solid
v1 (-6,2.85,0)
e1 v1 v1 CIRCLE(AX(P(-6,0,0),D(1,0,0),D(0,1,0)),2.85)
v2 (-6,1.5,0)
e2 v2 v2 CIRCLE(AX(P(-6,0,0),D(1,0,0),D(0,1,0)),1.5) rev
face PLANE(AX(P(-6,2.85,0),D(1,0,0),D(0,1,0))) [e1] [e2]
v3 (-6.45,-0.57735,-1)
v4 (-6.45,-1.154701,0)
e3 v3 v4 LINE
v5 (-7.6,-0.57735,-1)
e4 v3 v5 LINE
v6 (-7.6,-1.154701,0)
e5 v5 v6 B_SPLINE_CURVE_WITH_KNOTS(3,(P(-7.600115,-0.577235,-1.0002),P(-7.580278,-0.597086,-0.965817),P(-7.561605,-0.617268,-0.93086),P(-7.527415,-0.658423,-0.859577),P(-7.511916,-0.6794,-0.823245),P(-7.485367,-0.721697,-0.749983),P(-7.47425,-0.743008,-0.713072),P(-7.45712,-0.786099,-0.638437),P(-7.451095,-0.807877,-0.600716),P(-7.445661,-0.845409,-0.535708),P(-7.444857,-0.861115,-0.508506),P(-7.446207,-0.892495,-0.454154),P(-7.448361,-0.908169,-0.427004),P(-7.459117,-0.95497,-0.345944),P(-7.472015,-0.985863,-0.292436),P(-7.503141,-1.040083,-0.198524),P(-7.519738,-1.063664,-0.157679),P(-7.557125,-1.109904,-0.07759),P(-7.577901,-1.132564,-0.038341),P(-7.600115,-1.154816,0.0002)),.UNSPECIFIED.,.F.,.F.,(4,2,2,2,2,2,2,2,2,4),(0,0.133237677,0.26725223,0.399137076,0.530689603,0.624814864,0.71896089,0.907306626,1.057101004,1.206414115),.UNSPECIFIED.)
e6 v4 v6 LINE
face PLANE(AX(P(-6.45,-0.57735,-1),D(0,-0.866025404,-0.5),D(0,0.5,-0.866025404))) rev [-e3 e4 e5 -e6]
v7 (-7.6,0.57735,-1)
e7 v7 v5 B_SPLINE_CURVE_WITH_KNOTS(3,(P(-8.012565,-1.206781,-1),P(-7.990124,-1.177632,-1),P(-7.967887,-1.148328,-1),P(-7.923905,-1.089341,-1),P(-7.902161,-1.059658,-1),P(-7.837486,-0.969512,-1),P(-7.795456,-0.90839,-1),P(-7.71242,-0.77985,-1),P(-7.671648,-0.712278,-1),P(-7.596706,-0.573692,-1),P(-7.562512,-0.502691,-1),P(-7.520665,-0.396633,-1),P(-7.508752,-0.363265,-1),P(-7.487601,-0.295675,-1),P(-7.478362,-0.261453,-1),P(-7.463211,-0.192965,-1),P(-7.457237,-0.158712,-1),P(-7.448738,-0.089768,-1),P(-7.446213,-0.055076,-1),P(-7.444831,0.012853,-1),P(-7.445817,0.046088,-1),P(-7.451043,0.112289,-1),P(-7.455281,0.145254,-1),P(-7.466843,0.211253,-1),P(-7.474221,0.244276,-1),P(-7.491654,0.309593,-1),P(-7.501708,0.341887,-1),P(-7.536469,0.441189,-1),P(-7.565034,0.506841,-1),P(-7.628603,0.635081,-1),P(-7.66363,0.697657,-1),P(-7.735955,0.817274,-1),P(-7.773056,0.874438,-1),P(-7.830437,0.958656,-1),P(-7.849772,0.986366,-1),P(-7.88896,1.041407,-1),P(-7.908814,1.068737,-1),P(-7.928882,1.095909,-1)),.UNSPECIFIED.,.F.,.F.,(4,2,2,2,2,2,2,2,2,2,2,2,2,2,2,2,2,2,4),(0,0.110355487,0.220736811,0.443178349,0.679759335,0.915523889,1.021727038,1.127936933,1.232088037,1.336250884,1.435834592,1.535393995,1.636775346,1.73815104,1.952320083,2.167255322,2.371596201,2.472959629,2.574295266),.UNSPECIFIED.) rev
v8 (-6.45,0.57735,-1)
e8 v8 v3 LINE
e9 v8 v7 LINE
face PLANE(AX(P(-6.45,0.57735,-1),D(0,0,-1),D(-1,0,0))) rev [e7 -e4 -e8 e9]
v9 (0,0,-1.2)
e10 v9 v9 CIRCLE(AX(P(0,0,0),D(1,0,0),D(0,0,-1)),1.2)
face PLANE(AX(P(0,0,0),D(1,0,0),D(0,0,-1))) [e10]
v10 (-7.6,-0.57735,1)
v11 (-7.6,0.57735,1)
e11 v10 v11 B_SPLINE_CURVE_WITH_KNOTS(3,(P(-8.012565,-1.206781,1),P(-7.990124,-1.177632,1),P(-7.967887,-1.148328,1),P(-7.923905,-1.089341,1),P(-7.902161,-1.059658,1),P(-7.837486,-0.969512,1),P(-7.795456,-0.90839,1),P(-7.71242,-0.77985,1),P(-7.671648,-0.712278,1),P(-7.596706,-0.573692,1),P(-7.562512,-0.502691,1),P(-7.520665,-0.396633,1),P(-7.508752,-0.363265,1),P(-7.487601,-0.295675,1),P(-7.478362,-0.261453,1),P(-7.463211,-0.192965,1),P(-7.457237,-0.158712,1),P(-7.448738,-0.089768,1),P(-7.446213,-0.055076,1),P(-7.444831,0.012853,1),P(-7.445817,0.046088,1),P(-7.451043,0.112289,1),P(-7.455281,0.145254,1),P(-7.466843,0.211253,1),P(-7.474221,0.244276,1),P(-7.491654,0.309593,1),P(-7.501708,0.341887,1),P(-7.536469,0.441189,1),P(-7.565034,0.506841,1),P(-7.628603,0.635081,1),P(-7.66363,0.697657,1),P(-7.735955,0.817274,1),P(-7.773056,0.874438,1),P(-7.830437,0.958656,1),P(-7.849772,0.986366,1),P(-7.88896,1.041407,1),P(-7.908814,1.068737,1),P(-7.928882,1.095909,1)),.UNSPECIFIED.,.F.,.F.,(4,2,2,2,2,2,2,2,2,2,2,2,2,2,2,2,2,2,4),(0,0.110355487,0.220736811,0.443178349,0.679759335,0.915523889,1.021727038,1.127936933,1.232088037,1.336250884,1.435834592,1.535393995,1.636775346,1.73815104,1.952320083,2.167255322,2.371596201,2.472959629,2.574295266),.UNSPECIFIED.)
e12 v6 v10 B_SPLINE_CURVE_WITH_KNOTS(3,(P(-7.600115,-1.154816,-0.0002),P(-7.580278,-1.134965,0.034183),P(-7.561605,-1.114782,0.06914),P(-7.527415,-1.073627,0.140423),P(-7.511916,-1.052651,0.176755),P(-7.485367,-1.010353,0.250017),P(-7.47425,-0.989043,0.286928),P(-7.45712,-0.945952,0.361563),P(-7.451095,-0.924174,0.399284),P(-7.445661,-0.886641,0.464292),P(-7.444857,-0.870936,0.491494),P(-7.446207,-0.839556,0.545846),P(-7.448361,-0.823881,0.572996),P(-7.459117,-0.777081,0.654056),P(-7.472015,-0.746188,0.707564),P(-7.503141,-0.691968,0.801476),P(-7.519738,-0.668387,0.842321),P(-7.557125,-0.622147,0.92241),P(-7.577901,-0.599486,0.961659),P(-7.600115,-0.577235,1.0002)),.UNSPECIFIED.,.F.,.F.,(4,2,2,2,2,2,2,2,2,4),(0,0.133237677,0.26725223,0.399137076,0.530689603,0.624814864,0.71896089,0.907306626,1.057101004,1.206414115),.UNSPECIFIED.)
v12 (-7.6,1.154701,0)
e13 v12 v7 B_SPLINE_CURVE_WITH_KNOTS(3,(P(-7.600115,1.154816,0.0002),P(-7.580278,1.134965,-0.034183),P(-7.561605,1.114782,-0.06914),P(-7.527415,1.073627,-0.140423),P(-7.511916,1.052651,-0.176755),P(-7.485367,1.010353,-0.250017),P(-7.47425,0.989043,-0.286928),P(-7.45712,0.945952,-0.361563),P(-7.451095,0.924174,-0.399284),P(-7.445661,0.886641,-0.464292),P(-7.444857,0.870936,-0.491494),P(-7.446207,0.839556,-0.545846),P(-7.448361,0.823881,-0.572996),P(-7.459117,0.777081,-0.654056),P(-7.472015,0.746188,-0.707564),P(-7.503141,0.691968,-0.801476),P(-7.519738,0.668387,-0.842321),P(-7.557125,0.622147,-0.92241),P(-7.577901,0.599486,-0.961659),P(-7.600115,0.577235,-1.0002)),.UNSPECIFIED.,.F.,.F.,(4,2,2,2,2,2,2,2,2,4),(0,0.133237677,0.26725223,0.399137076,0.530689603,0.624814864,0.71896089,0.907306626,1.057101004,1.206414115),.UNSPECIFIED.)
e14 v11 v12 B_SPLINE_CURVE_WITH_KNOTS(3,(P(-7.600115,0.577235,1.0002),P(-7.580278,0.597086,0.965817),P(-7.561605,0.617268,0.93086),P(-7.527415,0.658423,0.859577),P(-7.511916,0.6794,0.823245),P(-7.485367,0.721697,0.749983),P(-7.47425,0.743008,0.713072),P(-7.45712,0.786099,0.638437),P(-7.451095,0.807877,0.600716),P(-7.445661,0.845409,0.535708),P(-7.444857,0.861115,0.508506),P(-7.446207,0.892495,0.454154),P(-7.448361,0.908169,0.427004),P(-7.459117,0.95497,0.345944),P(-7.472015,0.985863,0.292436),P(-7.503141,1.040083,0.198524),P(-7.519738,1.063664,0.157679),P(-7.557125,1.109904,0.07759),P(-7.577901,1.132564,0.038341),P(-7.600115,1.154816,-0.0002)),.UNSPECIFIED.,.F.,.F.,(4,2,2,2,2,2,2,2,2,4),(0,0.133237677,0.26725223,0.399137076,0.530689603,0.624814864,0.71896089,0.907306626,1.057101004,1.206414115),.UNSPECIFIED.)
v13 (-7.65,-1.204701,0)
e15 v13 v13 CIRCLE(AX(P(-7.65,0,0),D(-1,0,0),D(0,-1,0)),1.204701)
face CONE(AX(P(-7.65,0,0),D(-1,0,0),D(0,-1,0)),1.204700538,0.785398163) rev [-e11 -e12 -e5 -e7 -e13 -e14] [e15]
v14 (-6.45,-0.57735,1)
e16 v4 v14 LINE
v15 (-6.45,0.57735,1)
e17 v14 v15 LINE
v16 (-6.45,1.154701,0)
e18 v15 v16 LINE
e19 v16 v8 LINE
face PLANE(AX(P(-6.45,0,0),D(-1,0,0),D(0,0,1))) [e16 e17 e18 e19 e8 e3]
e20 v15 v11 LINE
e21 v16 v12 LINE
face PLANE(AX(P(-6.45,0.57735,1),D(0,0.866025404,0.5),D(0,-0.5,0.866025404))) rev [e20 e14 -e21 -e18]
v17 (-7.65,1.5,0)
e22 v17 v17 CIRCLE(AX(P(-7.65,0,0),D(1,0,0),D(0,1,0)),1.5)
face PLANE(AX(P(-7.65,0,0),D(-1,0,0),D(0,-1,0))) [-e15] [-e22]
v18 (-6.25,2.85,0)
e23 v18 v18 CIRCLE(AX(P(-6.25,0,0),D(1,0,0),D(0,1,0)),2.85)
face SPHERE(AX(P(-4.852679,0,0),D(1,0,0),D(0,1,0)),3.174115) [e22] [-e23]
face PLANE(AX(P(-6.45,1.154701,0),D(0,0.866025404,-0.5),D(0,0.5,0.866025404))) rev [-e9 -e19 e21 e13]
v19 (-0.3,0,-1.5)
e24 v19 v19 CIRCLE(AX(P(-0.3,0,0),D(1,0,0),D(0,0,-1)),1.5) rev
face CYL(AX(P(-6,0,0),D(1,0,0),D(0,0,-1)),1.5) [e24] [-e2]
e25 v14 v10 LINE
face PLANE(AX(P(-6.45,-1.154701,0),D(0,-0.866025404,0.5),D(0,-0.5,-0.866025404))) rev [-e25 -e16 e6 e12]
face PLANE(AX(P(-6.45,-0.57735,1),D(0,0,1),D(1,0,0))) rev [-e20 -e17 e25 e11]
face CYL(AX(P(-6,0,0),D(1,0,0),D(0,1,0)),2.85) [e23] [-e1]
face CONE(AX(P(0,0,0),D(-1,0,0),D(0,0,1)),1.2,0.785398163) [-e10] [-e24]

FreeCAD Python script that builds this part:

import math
import FreeCAD as App
import Part
import Sketcher
Q = App.Units.Quantity


def edges_at(feature, points):
    """Names of the edges that pass closest to the given points."""
    edges = feature.Shape.Edges
    near = lambda p: min(range(len(edges)), key=lambda i: edges[i].distToShape(Part.Vertex(*p))[0])
    return sorted({f"Edge{near(p) + 1}" for p in points})


def add_polygon(sketch, points):
    """Adds a closed chain of lines whose ends are joined by coincident constraints."""
    first, n = sketch.GeometryCount, len(points)
    for a, b in zip(points, points[1:] + points[:1]):
        sketch.addGeometry(Part.LineSegment(App.Vector(*a, 0), App.Vector(*b, 0)), False)
    for i in range(n):
        sketch.addConstraint(Sketcher.Constraint("Coincident", first + i, 2, first + (i + 1) % n, 1))

doc = App.newDocument("Part")
body = doc.addObject("PartDesign::Body", "Body")

sketch1 = doc.addObject("Sketcher::SketchObject", "Sketch")
body.addObject(sketch1)
sketch1.AttachmentSupport = (doc.YZ_Plane, [""])
sketch1.MapMode = "FlatFace"
sketch1.addGeometry(Part.Circle(App.Vector(0, 0, 0), App.Vector(0, 0, 1), 1.5), False)
sketch1.addConstraint([
    Sketcher.Constraint("Coincident", 0, 3, -1, 1),
    Sketcher.Constraint("Diameter", 0, 3.0),
])
pad1 = doc.addObject("PartDesign::Pad", "Pad")
body.addObject(pad1)
pad1.Profile = sketch1
pad1.Length = 6
pad1.Reversed = True
doc.recompute()

chamfer = doc.addObject("PartDesign::Chamfer", "Chamfer")
body.addObject(chamfer)
chamfer.Base = (pad1, edges_at(pad1, [(0, 0, 1.5)]))
chamfer.Size = 0.3

sketch2 = doc.addObject("Sketcher::SketchObject", "Sketch001")
body.addObject(sketch2)
sketch2.AttachmentSupport = (doc.XY_Plane, [""])
sketch2.MapMode = "FlatFace"
sketch2.addGeometry([
    Part.LineSegment(App.Vector(-7.65, 1.5, 0), App.Vector(-7.65, 0, 0)),
    Part.LineSegment(App.Vector(-7.65, 0, 0), App.Vector(-6, 0, 0)),
    Part.LineSegment(App.Vector(-6, 0, 0), App.Vector(-6, 2.85, 0)),
    Part.LineSegment(App.Vector(-6, 2.85, 0), App.Vector(-6.25, 2.85, 0)),
    Part.ArcOfCircle(Part.Circle(App.Vector(-4.85, 0, 0), App.Vector(0, 0, 1), 3.17), math.radians(116), math.radians(152)),
], False)
sketch2.addConstraint([
    Sketcher.Constraint("Coincident", 0, 2, 1, 1),
    Sketcher.Constraint("Coincident", 1, 2, 2, 1),
    Sketcher.Constraint("Coincident", 2, 2, 3, 1),
    Sketcher.Constraint("Coincident", 3, 2, 4, 1),
    Sketcher.Constraint("Coincident", 4, 2, 0, 1),
    Sketcher.Constraint("Vertical", 0),
    Sketcher.Constraint("Horizontal", 1),
    Sketcher.Constraint("Vertical", 2),
    Sketcher.Constraint("Horizontal", 3),
    Sketcher.Constraint("PointOnObject", 4, 3, -1),
    Sketcher.Constraint("PointOnObject", 0, 2, -1),
    Sketcher.Constraint("DistanceY", 0, 2, 0, 1, 1.5),
    Sketcher.Constraint("DistanceX", 1, 2, -1, 1, 6.0),
    Sketcher.Constraint("DistanceX", 1, 1, 1, 2, 1.65),
    Sketcher.Constraint("DistanceX", 3, 2, 3, 1, 0.25),
    Sketcher.Constraint("DistanceY", 2, 1, 2, 2, 2.85),
])
revolution = doc.addObject("PartDesign::Revolution", "Revolution")
body.addObject(revolution)
revolution.Profile = sketch2
revolution.ReferenceAxis = (sketch2, ["H_Axis"])
revolution.Angle = 360

sketch3 = doc.addObject("Sketcher::SketchObject", "Sketch002")
body.addObject(sketch3)
sketch3.AttachmentSupport = (doc.YZ_Plane, [""])
sketch3.MapMode = "FlatFace"
sketch3.AttachmentOffset = App.Placement(App.Vector(0, 0, -7.65), App.Rotation())
add_polygon(sketch3, [(1.2, 0), (0.6, -1), (-0.6, -1), (-1.2, 0), (-0.6, 1), (0.6, 1)])
sketch3.addConstraint([
    Sketcher.Constraint("Horizontal", 1),
    Sketcher.Constraint("Horizontal", 4),
    Sketcher.Constraint("Symmetric", 0, 2, 3, 2, -1, 1),
    Sketcher.Constraint("Symmetric", 2, 2, 5, 2, -1, 1),
    Sketcher.Constraint("PointOnObject", 2, 2, -1),
    Sketcher.Constraint("Parallel", 2, 5),
    Sketcher.Constraint("Vertical", 1, 2, 3, 2),
    Sketcher.Constraint("Angle", 0, Q("-120 deg")),
    Sketcher.Constraint("DistanceY", 0, 2, -1, 1, 1.0),
    Sketcher.Constraint("DistanceX", 1, 2, 1, 1, 1.154701),
])
pocket1 = doc.addObject("PartDesign::Pocket", "Pocket")
body.addObject(pocket1)
pocket1.Profile = sketch3
pocket1.Length = 1.2
pocket1.Reversed = True

sketch4 = doc.addObject("Sketcher::SketchObject", "Sketch003")
body.addObject(sketch4)
sketch4.AttachmentSupport = (doc.YZ_Plane, [""])
sketch4.MapMode = "FlatFace"
sketch4.AttachmentOffset = App.Placement(App.Vector(0, 0, -7.65), App.Rotation())
sketch4.addGeometry(Part.Circle(App.Vector(0, 0, 0), App.Vector(0, 0, 1), 1.2), False)
sketch4.addConstraint([
    Sketcher.Constraint("Coincident", 0, 3, -1, 1),
    Sketcher.Constraint("Diameter", 0, 2.409401),
])
pocket2 = doc.addObject("PartDesign::Pocket", "Pocket001")
body.addObject(pocket2)
pocket2.Profile = sketch4
pocket2.Length = 1
pocket2.Reversed = True
pocket2.TaperAngle = -45

doc.recompute()
